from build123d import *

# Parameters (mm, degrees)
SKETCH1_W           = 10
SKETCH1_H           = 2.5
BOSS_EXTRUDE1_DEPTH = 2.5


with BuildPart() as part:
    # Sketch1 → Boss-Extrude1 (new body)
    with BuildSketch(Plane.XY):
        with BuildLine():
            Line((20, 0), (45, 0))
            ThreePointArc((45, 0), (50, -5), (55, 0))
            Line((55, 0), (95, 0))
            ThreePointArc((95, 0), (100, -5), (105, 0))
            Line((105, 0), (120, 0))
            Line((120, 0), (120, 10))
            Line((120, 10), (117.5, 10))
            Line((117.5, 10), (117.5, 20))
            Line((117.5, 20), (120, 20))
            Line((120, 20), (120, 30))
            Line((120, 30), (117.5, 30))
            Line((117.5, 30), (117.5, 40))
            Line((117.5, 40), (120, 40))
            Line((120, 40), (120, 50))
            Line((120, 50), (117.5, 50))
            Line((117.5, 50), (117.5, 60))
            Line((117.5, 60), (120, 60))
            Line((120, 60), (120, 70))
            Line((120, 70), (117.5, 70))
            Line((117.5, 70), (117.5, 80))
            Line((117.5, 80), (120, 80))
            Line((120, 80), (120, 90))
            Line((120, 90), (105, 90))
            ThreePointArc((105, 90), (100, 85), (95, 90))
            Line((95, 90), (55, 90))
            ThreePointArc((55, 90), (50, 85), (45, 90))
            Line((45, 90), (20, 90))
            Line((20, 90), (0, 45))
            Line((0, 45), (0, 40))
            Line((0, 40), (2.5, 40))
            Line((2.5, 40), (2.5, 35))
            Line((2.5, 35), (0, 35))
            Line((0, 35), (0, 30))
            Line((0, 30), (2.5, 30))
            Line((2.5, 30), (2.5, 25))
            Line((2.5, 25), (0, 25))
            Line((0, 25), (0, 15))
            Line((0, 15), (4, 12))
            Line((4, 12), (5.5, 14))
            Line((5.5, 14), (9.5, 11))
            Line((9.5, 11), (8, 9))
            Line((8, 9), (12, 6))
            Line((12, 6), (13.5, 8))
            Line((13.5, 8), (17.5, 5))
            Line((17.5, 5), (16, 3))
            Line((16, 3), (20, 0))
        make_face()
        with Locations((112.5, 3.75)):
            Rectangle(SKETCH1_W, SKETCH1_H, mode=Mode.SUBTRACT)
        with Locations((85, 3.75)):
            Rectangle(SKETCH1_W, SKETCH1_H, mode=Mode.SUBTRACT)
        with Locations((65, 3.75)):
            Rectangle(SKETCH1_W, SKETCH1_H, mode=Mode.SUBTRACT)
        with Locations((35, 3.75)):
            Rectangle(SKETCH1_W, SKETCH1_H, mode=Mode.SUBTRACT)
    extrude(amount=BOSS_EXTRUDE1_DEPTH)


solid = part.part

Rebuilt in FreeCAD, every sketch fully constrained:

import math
import FreeCAD as App
import Part
import Sketcher

V = App.Vector

doc = App.newDocument("Part")
body = doc.addObject("PartDesign::Body", "Body")

sketch1 = body.newObject("Sketcher::SketchObject", "Sketch")
sketch1.AttachmentSupport = (doc.getObject("XY_Plane"), [""])
sketch1.MapMode = "FlatFace"
sketch1.addGeometry([
    Part.LineSegment(V(20, 0, 0), V(45, 0, 0)),
    Part.ArcOfCircle(Part.Circle(V(50, 0, 0), V(0, 0, 1), 5), math.radians(180), math.radians(360)),
    Part.LineSegment(V(55, 0, 0), V(95, 0, 0)),
    Part.ArcOfCircle(Part.Circle(V(100, 0, 0), V(0, 0, 1), 5), math.radians(180), math.radians(360)),
    Part.LineSegment(V(105, 0, 0), V(120, 0, 0)),
    Part.LineSegment(V(120, 0, 0), V(120, 10, 0)),
    Part.LineSegment(V(120, 10, 0), V(117.5, 10, 0)),
    Part.LineSegment(V(117.5, 10, 0), V(117.5, 20, 0)),
    Part.LineSegment(V(117.5, 20, 0), V(120, 20, 0)),
    Part.LineSegment(V(120, 20, 0), V(120, 30, 0)),
    Part.LineSegment(V(120, 30, 0), V(117.5, 30, 0)),
    Part.LineSegment(V(117.5, 30, 0), V(117.5, 40, 0)),
    Part.LineSegment(V(117.5, 40, 0), V(120, 40, 0)),
    Part.LineSegment(V(120, 40, 0), V(120, 50, 0)),
    Part.LineSegment(V(120, 50, 0), V(117.5, 50, 0)),
    Part.LineSegment(V(117.5, 50, 0), V(117.5, 60, 0)),
    Part.LineSegment(V(117.5, 60, 0), V(120, 60, 0)),
    Part.LineSegment(V(120, 60, 0), V(120, 70, 0)),
    Part.LineSegment(V(120, 70, 0), V(117.5, 70, 0)),
    Part.LineSegment(V(117.5, 70, 0), V(117.5, 80, 0)),
    Part.LineSegment(V(117.5, 80, 0), V(120, 80, 0)),
    Part.LineSegment(V(120, 80, 0), V(120, 90, 0)),
    Part.LineSegment(V(120, 90, 0), V(105, 90, 0)),
    Part.ArcOfCircle(Part.Circle(V(100, 90, 0), V(0, 0, 1), 5), math.radians(180), math.radians(360)),
    Part.LineSegment(V(95, 90, 0), V(55, 90, 0)),
    Part.ArcOfCircle(Part.Circle(V(50, 90, 0), V(0, 0, 1), 5), math.radians(180), math.radians(360)),
    Part.LineSegment(V(45, 90, 0), V(20, 90, 0)),
    Part.LineSegment(V(20, 90, 0), V(0, 45, 0)),
    Part.LineSegment(V(0, 45, 0), V(0, 40, 0)),
    Part.LineSegment(V(0, 40, 0), V(2.5, 40, 0)),
    Part.LineSegment(V(2.5, 40, 0), V(2.5, 35, 0)),
    Part.LineSegment(V(2.5, 35, 0), V(0, 35, 0)),
    Part.LineSegment(V(0, 35, 0), V(0, 30, 0)),
    Part.LineSegment(V(0, 30, 0), V(2.5, 30, 0)),
    Part.LineSegment(V(2.5, 30, 0), V(2.5, 25, 0)),
    Part.LineSegment(V(2.5, 25, 0), V(0, 25, 0)),
    Part.LineSegment(V(0, 25, 0), V(0, 15, 0)),
    Part.LineSegment(V(0, 15, 0), V(4, 12, 0)),
    Part.LineSegment(V(4, 12, 0), V(5.5, 14, 0)),
    Part.LineSegment(V(5.5, 14, 0), V(9.5, 11, 0)),
    Part.LineSegment(V(9.5, 11, 0), V(8, 9, 0)),
    Part.LineSegment(V(8, 9, 0), V(12, 6, 0)),
    Part.LineSegment(V(12, 6, 0), V(13.5, 8, 0)),
    Part.LineSegment(V(13.5, 8, 0), V(17.5, 5, 0)),
    Part.LineSegment(V(17.5, 5, 0), V(16, 3, 0)),
    Part.LineSegment(V(16, 3, 0), V(20, 0, 0)),
    Part.LineSegment(V(40, 2.5, 0), V(30, 2.5, 0)),
    Part.LineSegment(V(30, 2.5, 0), V(30, 5, 0)),
    Part.LineSegment(V(30, 5, 0), V(40, 5, 0)),
    Part.LineSegment(V(40, 5, 0), V(40, 2.5, 0)),
    Part.LineSegment(V(70, 2.5, 0), V(60, 2.5, 0)),
    Part.LineSegment(V(60, 2.5, 0), V(60, 5, 0)),
    Part.LineSegment(V(60, 5, 0), V(70, 5, 0)),
    Part.LineSegment(V(70, 5, 0), V(70, 2.5, 0)),
    Part.LineSegment(V(90, 2.5, 0), V(80, 2.5, 0)),
    Part.LineSegment(V(80, 2.5, 0), V(80, 5, 0)),
    Part.LineSegment(V(80, 5, 0), V(90, 5, 0)),
    Part.LineSegment(V(90, 5, 0), V(90, 2.5, 0)),
    Part.LineSegment(V(117.5, 2.5, 0), V(107.5, 2.5, 0)),
    Part.LineSegment(V(107.5, 2.5, 0), V(107.5, 5, 0)),
    Part.LineSegment(V(107.5, 5, 0), V(117.5, 5, 0)),
    Part.LineSegment(V(117.5, 5, 0), V(117.5, 2.5, 0)),
], False)
sketch1.addConstraint([
    Sketcher.Constraint("Coincident", 0, 2, 1, 1),
    Sketcher.Constraint("Coincident", 1, 2, 2, 1),
    Sketcher.Constraint("Coincident", 2, 2, 3, 1),
    Sketcher.Constraint("Coincident", 3, 2, 4, 1),
    Sketcher.Constraint("Coincident", 4, 2, 5, 1),
    Sketcher.Constraint("Coincident", 5, 2, 6, 1),
    Sketcher.Constraint("Coincident", 6, 2, 7, 1),
    Sketcher.Constraint("Coincident", 7, 2, 8, 1),
    Sketcher.Constraint("Coincident", 8, 2, 9, 1),
    Sketcher.Constraint("Coincident", 9, 2, 10, 1),
    Sketcher.Constraint("Coincident", 10, 2, 11, 1),
    Sketcher.Constraint("Coincident", 11, 2, 12, 1),
    Sketcher.Constraint("Coincident", 12, 2, 13, 1),
    Sketcher.Constraint("Coincident", 13, 2, 14, 1),
    Sketcher.Constraint("Coincident", 14, 2, 15, 1),
    Sketcher.Constraint("Coincident", 15, 2, 16, 1),
    Sketcher.Constraint("Coincident", 16, 2, 17, 1),
    Sketcher.Constraint("Coincident", 17, 2, 18, 1),
    Sketcher.Constraint("Coincident", 18, 2, 19, 1),
    Sketcher.Constraint("Coincident", 19, 2, 20, 1),
    Sketcher.Constraint("Coincident", 20, 2, 21, 1),
    Sketcher.Constraint("Coincident", 21, 2, 22, 1),
    Sketcher.Constraint("Coincident", 22, 2, 23, 2),
    Sketcher.Constraint("Coincident", 23, 1, 24, 1),
    Sketcher.Constraint("Coincident", 24, 2, 25, 2),
    Sketcher.Constraint("Coincident", 25, 1, 26, 1),
    Sketcher.Constraint("Coincident", 26, 2, 27, 1),
    Sketcher.Constraint("Coincident", 27, 2, 28, 1),
    Sketcher.Constraint("Coincident", 28, 2, 29, 1),
    Sketcher.Constraint("Coincident", 29, 2, 30, 1),
    Sketcher.Constraint("Coincident", 30, 2, 31, 1),
    Sketcher.Constraint("Coincident", 31, 2, 32, 1),
    Sketcher.Constraint("Coincident", 32, 2, 33, 1),
    Sketcher.Constraint("Coincident", 33, 2, 34, 1),
    Sketcher.Constraint("Coincident", 34, 2, 35, 1),
    Sketcher.Constraint("Coincident", 35, 2, 36, 1),
    Sketcher.Constraint("Coincident", 36, 2, 37, 1),
    Sketcher.Constraint("Coincident", 37, 2, 38, 1),
    Sketcher.Constraint("Coincident", 38, 2, 39, 1),
    Sketcher.Constraint("Coincident", 39, 2, 40, 1),
    Sketcher.Constraint("Coincident", 40, 2, 41, 1),
    Sketcher.Constraint("Coincident", 41, 2, 42, 1),
    Sketcher.Constraint("Coincident", 42, 2, 43, 1),
    Sketcher.Constraint("Coincident", 43, 2, 44, 1),
    Sketcher.Constraint("Coincident", 44, 2, 45, 1),
    Sketcher.Constraint("Coincident", 45, 2, 0, 1),
    Sketcher.Constraint("Coincident", 46, 2, 47, 1),
    Sketcher.Constraint("Coincident", 47, 2, 48, 1),
    Sketcher.Constraint("Coincident", 48, 2, 49, 1),
    Sketcher.Constraint("Coincident", 49, 2, 46, 1),
    Sketcher.Constraint("Coincident", 50, 2, 51, 1),
    Sketcher.Constraint("Coincident", 51, 2, 52, 1),
    Sketcher.Constraint("Coincident", 52, 2, 53, 1),
    Sketcher.Constraint("Coincident", 53, 2, 50, 1),
    Sketcher.Constraint("Coincident", 54, 2, 55, 1),
    Sketcher.Constraint("Coincident", 55, 2, 56, 1),
    Sketcher.Constraint("Coincident", 56, 2, 57, 1),
    Sketcher.Constraint("Coincident", 57, 2, 54, 1),
    Sketcher.Constraint("Coincident", 58, 2, 59, 1),
    Sketcher.Constraint("Coincident", 59, 2, 60, 1),
    Sketcher.Constraint("Coincident", 60, 2, 61, 1),
    Sketcher.Constraint("Coincident", 61, 2, 58, 1),
    Sketcher.Constraint("Horizontal", 0),
    Sketcher.Constraint("Horizontal", 2),
    Sketcher.Constraint("Horizontal", 4),
    Sketcher.Constraint("Vertical", 5),
    Sketcher.Constraint("Horizontal", 6),
    Sketcher.Constraint("Vertical", 7),
    Sketcher.Constraint("Horizontal", 8),
    Sketcher.Constraint("Vertical", 9),
    Sketcher.Constraint("Horizontal", 10),
    Sketcher.Constraint("Vertical", 11),
    Sketcher.Constraint("Horizontal", 12),
    Sketcher.Constraint("Vertical", 13),
    Sketcher.Constraint("Horizontal", 14),
    Sketcher.Constraint("Vertical", 15),
    Sketcher.Constraint("Horizontal", 16),
    Sketcher.Constraint("Vertical", 17),
    Sketcher.Constraint("Horizontal", 18),
    Sketcher.Constraint("Vertical", 19),
    Sketcher.Constraint("Horizontal", 20),
    Sketcher.Constraint("Vertical", 21),
    Sketcher.Constraint("Horizontal", 22),
    Sketcher.Constraint("Horizontal", 24),
    Sketcher.Constraint("Horizontal", 26),
    Sketcher.Constraint("Vertical", 28),
    Sketcher.Constraint("Horizontal", 29),
    Sketcher.Constraint("Vertical", 30),
    Sketcher.Constraint("Horizontal", 31),
    Sketcher.Constraint("Vertical", 32),
    Sketcher.Constraint("Horizontal", 33),
    Sketcher.Constraint("Vertical", 34),
    Sketcher.Constraint("Horizontal", 35),
    Sketcher.Constraint("Vertical", 36),
    Sketcher.Constraint("Horizontal", 46),
    Sketcher.Constraint("Vertical", 47),
    Sketcher.Constraint("Horizontal", 48),
    Sketcher.Constraint("Vertical", 49),
    Sketcher.Constraint("Horizontal", 50),
    Sketcher.Constraint("Vertical", 51),
    Sketcher.Constraint("Horizontal", 52),
    Sketcher.Constraint("Vertical", 53),
    Sketcher.Constraint("Horizontal", 54),
    Sketcher.Constraint("Vertical", 55),
    Sketcher.Constraint("Horizontal", 56),
    Sketcher.Constraint("Vertical", 57),
    Sketcher.Constraint("Horizontal", 58),
    Sketcher.Constraint("Vertical", 59),
    Sketcher.Constraint("Horizontal", 60),
    Sketcher.Constraint("Vertical", 61),
    Sketcher.Constraint("Equal", 1, 3),
    Sketcher.Constraint("Equal", 3, 23),
    Sketcher.Constraint("Equal", 23, 25),
    Sketcher.Constraint("PointOnObject", 1, 3, -1),
    Sketcher.Constraint("PointOnObject", 3, 3, -1),
    Sketcher.Constraint("PointOnObject", 0, 2, -1),
    Sketcher.Constraint("PointOnObject", 1, 2, -1),
    Sketcher.Constraint("PointOnObject", 3, 2, -1),
    Sketcher.Constraint("PointOnObject", 27, 2, -2),
    Sketcher.Constraint("PointOnObject", 31, 2, -2),
    Sketcher.Constraint("PointOnObject", 35, 2, -2),
    Sketcher.Constraint("Perpendicular", 37, 38),
    Sketcher.Constraint("Perpendicular", 38, 39),
    Sketcher.Constraint("Perpendicular", 39, 40),
    Sketcher.Constraint("Perpendicular", 40, 41),
    Sketcher.Constraint("Perpendicular", 41, 42),
    Sketcher.Constraint("Perpendicular", 42, 43),
    Sketcher.Constraint("Perpendicular", 43, 44),
    Sketcher.Constraint("Perpendicular", 44, 45),
    Sketcher.Constraint("Horizontal", 23, 3, 25, 3),
    Sketcher.Constraint("Horizontal", 25, 3, 21, 2),
    Sketcher.Constraint("Horizontal", 22, 2, 23, 1),
    Sketcher.Constraint("Horizontal", 24, 2, 25, 1),
    Sketcher.Constraint("Horizontal", 12, 2, 28, 2),
    Sketcher.Constraint("Horizontal", 10, 2, 32, 2),
    Sketcher.Constraint("Horizontal", 43, 2, 47, 2),
    Sketcher.Constraint("Horizontal", 49, 2, 50, 2),
    Sketcher.Constraint("Horizontal", 48, 2, 51, 2),
    Sketcher.Constraint("Horizontal", 53, 2, 54, 2),
    Sketcher.Constraint("Horizontal", 52, 2, 55, 2),
    Sketcher.Constraint("Horizontal", 57, 2, 58, 2),
    Sketcher.Constraint("Horizontal", 56, 2, 59, 2),
    Sketcher.Constraint("Vertical", 3, 3, 23, 3),
    Sketcher.Constraint("Vertical", 1, 3, 25, 3),
    Sketcher.Constraint("Vertical", 5, 2, 8, 2),
    Sketcher.Constraint("Vertical", 7, 2, 10, 2),
    Sketcher.Constraint("Vertical", 9, 2, 12, 2),
    Sketcher.Constraint("Vertical", 11, 2, 14, 2),
    Sketcher.Constraint("Vertical", 13, 2, 16, 2),
    Sketcher.Constraint("Vertical", 15, 2, 18, 2),
    Sketcher.Constraint("Vertical", 17, 2, 20, 2),
    Sketcher.Constraint("Vertical", 30, 2, 33, 2),
    Sketcher.Constraint("Vertical", 26, 2, 45, 2),
    Sketcher.Constraint("Vertical", 19, 2, 60, 2),
    Sketcher.Constraint("Equal", 20, 29),
    Sketcher.Constraint("Equal", 48, 50),
    Sketcher.Constraint("Equal", 52, 54),
    Sketcher.Constraint("Equal", 56, 58),
    Sketcher.Constraint("Equal", 60, 5),
    Sketcher.Constraint("Equal", 5, 7),
    Sketcher.Constraint("Equal", 7, 9),
    Sketcher.Constraint("Equal", 9, 11),
    Sketcher.Constraint("Equal", 11, 13),
    Sketcher.Constraint("Equal", 13, 15),
    Sketcher.Constraint("Equal", 15, 17),
    Sketcher.Constraint("Equal", 17, 19),
    Sketcher.Constraint("Equal", 19, 21),
    Sketcher.Constraint("Equal", 28, 30),
    Sketcher.Constraint("Equal", 30, 32),
    Sketcher.Constraint("Equal", 32, 34),
    Sketcher.Constraint("Equal", 21, 36),
    Sketcher.Constraint("Equal", 35, 47),
    Sketcher.Constraint("Equal", 37, 39),
    Sketcher.Constraint("Equal", 38, 40),
    Sketcher.Constraint("Equal", 39, 41),
    Sketcher.Constraint("Equal", 40, 42),
    Sketcher.Constraint("Equal", 41, 43),
    Sketcher.Constraint("Equal", 42, 44),
    Sketcher.Constraint("Equal", 43, 45),
    Sketcher.Constraint("Radius", 1, 5.0),
    Sketcher.Constraint("DistanceX", 0, 1, 0, 2, 25.0),
    Sketcher.Constraint("DistanceX", 2, 1, 2, 2, 40.0),
    Sketcher.Constraint("DistanceX", 4, 1, 4, 2, 15.0),
    Sketcher.Constraint("DistanceX", 46, 2, 46, 1, 10.0),
    Sketcher.Constraint("Distance", 37, 5.0),
    Sketcher.Constraint("DistanceX", 6, 2, 6, 1, 2.5),
    Sketcher.Constraint("DistanceY", -1, 1, 38, 2, 14.0),
    Sketcher.Constraint("DistanceX", -1, 1, 46, 2, 30.0),
    Sketcher.Constraint("DistanceX", -1, 1, 50, 2, 60.0),
    Sketcher.Constraint("DistanceX", -1, 1, 54, 2, 80.0),
])
pad1 = body.newObject("PartDesign::Pad", "Pad")
pad1.Profile = sketch1
pad1.Length = 2.5

doc.recompute()
